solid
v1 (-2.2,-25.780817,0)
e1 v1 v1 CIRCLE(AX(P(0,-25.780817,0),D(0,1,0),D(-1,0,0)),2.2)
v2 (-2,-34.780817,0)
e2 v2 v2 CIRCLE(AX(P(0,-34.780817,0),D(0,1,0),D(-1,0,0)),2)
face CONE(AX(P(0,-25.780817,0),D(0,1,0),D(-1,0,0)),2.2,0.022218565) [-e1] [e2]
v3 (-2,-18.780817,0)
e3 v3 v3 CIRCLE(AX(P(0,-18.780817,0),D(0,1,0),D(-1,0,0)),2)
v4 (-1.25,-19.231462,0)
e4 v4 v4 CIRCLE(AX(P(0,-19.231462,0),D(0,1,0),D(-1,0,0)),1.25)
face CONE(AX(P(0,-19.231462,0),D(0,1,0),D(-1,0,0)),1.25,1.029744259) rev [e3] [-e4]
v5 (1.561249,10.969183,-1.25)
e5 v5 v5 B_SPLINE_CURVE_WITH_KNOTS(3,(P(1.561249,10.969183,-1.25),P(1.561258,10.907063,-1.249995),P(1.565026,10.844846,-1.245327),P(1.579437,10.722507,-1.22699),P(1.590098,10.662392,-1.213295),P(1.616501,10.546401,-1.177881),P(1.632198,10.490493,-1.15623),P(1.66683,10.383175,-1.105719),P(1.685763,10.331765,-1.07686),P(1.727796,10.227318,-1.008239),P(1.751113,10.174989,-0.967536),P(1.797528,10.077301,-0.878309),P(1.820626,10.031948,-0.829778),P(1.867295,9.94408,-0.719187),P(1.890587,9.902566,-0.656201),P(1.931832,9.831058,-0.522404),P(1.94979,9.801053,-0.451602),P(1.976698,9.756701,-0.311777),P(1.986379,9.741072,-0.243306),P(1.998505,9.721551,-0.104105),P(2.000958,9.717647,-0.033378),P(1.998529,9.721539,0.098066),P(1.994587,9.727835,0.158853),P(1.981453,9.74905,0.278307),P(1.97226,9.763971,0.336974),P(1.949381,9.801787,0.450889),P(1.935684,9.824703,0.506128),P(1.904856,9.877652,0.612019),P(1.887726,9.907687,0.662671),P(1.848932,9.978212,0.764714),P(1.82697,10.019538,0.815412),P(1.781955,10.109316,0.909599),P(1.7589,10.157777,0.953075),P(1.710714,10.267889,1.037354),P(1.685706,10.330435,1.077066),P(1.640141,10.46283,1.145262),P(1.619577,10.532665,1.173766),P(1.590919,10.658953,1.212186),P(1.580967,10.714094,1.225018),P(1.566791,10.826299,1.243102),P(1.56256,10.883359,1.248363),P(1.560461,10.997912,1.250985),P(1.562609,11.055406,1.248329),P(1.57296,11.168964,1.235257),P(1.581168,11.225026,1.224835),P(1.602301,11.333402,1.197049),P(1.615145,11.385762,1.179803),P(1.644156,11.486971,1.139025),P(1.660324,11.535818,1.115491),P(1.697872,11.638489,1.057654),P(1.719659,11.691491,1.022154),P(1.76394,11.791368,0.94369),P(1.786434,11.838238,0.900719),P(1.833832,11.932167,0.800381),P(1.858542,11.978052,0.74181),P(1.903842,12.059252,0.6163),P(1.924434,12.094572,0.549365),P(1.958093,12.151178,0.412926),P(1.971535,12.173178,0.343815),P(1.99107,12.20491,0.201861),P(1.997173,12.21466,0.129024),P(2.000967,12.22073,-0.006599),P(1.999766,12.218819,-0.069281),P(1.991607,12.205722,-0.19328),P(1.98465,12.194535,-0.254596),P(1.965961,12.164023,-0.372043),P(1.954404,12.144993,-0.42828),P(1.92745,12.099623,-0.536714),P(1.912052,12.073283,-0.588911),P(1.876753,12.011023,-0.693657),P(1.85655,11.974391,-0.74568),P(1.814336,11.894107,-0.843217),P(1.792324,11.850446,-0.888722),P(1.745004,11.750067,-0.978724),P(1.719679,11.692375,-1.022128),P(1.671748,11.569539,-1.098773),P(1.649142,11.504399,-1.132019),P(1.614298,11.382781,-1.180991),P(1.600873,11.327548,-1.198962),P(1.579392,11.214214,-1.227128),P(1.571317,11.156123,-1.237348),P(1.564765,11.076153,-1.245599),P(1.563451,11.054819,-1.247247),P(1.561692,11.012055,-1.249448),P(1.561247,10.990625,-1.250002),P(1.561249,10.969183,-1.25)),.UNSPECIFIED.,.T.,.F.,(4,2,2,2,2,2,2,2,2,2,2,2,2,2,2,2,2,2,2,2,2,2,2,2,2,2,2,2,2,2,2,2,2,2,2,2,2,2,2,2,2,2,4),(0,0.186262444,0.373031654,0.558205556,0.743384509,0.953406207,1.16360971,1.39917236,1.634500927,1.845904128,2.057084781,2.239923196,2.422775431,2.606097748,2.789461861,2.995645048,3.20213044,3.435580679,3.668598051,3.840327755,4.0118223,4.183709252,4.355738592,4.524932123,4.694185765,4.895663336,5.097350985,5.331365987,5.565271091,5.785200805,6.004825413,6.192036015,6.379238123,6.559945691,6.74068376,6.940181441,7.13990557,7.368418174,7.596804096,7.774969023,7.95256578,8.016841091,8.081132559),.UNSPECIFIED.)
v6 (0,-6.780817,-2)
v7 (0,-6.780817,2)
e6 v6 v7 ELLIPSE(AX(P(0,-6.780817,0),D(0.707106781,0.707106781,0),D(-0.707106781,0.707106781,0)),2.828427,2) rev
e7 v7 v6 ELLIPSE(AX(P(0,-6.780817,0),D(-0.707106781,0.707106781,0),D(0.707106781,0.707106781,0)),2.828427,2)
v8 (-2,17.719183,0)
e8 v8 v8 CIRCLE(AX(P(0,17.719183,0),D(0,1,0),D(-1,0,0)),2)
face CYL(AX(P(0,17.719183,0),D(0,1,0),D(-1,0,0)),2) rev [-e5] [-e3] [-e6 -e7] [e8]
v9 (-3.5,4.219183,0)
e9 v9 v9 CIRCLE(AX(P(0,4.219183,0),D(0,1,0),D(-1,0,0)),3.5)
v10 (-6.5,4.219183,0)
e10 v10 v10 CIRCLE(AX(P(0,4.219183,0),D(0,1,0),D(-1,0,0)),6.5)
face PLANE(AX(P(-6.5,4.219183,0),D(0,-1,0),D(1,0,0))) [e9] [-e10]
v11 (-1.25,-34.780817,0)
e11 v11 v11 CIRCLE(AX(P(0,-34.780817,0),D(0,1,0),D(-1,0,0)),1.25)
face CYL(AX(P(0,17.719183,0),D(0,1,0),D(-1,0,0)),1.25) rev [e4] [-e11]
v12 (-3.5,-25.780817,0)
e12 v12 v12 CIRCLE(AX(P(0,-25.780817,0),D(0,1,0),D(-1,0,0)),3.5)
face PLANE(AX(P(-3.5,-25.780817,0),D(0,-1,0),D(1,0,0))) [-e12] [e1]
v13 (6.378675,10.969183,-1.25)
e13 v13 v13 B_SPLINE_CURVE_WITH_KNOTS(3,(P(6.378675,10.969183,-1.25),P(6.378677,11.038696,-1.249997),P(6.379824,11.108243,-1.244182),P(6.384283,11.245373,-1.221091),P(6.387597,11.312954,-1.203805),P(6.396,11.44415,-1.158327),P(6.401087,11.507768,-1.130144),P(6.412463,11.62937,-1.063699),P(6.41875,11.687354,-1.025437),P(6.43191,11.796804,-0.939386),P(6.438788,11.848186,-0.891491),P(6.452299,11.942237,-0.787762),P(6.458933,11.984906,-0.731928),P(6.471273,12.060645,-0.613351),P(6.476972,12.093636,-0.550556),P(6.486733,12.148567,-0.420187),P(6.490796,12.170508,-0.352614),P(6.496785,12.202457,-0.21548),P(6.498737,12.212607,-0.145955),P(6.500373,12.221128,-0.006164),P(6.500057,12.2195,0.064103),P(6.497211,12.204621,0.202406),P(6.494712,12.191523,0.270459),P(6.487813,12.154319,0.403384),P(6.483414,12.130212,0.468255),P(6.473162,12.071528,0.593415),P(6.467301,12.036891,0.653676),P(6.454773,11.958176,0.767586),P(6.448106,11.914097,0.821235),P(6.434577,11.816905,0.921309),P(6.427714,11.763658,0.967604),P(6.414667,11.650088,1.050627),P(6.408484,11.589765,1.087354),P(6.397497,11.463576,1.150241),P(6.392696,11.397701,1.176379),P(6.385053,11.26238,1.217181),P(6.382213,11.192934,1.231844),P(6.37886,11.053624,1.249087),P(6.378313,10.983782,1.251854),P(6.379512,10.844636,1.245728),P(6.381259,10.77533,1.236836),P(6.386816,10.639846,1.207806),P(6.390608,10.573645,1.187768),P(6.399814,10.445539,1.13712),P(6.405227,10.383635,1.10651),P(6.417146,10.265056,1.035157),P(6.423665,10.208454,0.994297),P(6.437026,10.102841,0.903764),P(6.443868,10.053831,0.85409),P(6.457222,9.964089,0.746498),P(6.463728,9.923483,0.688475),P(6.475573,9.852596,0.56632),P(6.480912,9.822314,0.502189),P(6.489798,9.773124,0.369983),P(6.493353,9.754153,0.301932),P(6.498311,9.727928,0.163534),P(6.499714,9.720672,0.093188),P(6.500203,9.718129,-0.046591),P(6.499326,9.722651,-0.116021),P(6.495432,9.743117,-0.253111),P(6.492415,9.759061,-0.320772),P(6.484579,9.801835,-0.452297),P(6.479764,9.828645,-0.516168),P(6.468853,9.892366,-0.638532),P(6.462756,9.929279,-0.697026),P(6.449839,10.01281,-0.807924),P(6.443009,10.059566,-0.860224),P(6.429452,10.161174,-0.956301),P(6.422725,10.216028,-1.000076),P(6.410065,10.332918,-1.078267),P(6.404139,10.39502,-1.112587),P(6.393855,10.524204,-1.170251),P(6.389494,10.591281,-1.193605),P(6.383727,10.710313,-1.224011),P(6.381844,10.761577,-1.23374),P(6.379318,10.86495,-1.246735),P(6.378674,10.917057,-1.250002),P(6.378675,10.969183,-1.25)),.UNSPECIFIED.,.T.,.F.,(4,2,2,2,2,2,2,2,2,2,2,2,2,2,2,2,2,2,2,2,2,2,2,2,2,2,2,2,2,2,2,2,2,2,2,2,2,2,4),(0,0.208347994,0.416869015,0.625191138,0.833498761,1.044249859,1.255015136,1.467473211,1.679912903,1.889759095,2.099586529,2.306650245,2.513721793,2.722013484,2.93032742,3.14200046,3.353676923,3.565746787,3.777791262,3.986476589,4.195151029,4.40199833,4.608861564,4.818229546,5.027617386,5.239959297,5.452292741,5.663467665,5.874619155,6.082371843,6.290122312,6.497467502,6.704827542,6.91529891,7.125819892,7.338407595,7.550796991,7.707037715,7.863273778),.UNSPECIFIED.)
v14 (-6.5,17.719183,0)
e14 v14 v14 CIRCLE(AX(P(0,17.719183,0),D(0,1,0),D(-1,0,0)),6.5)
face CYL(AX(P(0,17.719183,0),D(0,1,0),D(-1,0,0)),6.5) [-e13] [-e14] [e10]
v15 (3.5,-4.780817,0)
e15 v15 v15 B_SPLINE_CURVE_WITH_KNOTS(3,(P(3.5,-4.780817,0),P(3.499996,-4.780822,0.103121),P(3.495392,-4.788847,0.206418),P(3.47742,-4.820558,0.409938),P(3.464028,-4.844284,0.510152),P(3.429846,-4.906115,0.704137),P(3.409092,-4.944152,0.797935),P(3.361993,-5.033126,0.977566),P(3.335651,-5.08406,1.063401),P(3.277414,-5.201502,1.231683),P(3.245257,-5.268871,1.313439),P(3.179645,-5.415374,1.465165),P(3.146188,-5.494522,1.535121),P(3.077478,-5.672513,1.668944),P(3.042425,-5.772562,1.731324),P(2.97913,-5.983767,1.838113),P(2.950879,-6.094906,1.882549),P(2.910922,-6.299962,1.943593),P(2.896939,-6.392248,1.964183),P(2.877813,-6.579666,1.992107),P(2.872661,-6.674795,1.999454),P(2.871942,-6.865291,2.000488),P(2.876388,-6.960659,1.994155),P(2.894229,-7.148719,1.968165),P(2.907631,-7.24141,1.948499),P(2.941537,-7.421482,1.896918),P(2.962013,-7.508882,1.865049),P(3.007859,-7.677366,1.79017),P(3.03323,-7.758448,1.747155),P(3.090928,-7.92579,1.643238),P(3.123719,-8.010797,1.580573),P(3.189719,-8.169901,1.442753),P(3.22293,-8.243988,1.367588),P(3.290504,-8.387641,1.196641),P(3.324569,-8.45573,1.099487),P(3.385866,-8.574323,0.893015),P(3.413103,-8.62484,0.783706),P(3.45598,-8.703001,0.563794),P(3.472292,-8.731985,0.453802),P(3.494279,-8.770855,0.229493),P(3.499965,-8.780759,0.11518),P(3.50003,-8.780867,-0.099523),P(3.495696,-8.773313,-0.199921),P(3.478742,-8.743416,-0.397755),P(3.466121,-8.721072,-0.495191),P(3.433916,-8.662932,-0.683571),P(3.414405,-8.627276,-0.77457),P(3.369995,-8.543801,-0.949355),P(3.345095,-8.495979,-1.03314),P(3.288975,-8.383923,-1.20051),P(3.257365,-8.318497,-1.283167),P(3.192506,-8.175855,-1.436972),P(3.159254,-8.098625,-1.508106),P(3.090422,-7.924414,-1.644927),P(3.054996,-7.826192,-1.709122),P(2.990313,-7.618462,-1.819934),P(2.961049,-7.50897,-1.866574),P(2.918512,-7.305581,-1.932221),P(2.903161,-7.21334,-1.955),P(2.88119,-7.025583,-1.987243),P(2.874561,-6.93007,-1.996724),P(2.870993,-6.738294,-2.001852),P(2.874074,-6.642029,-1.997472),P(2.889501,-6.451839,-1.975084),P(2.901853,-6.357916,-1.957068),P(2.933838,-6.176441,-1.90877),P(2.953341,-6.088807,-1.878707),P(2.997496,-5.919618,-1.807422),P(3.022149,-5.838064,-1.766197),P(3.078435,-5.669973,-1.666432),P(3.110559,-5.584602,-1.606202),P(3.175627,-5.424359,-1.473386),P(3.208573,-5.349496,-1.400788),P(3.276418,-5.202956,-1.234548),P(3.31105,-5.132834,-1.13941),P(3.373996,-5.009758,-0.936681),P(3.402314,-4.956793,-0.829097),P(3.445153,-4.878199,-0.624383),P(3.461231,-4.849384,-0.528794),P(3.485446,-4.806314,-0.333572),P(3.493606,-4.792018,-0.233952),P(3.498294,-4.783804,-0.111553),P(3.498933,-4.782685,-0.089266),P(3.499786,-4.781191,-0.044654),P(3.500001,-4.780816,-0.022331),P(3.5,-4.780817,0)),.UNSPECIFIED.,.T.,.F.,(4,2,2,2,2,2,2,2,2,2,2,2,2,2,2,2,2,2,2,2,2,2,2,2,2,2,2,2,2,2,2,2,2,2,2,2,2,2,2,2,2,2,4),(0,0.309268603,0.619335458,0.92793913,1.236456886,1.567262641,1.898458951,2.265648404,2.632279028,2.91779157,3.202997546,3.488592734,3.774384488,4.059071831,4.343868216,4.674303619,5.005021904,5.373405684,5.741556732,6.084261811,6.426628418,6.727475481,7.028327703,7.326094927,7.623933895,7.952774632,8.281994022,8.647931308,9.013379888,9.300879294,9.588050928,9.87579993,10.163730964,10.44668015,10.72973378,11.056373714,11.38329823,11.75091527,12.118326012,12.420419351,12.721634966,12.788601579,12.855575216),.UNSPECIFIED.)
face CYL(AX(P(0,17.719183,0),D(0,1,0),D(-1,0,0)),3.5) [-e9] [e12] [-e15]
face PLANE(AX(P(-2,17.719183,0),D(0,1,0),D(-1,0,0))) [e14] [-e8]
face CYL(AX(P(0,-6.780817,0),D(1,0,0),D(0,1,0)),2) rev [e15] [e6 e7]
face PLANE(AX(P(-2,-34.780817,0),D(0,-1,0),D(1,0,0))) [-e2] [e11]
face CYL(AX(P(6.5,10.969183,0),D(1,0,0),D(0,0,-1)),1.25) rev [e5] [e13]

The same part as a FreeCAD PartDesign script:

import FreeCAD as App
import Part
import Sketcher
Q = App.Units.Quantity

doc = App.newDocument("Part")
body = doc.addObject("PartDesign::Body", "Body")

sketch1 = body.newObject("Sketcher::SketchObject", "Sketch")
sketch1.AttachmentSupport = (doc.getObject("XY_Plane"), [""])
sketch1.MapMode = "FlatFace"
sketch1.addGeometry([
    Part.LineSegment(App.Vector(-2, -34.8, 0), App.Vector(-1.2, -34.8, 0)),
    Part.LineSegment(App.Vector(-1.2, -34.8, 0), App.Vector(-1.2, -19.2, 0)),
    Part.LineSegment(App.Vector(-1.2, -19.2, 0), App.Vector(-2, -18.8, 0)),
    Part.LineSegment(App.Vector(-2, -18.8, 0), App.Vector(-2, 17.7, 0)),
    Part.LineSegment(App.Vector(-2, 17.7, 0), App.Vector(-6.5, 17.7, 0)),
    Part.LineSegment(App.Vector(-6.5, 17.7, 0), App.Vector(-6.5, 4.2, 0)),
    Part.LineSegment(App.Vector(-6.5, 4.2, 0), App.Vector(-3.5, 4.2, 0)),
    Part.LineSegment(App.Vector(-3.5, 4.2, 0), App.Vector(-3.5, -25.8, 0)),
    Part.LineSegment(App.Vector(-3.5, -25.8, 0), App.Vector(-2.2, -25.8, 0)),
    Part.LineSegment(App.Vector(-2.2, -25.8, 0), App.Vector(-2, -34.8, 0)),
], False)
sketch1.addConstraint([
    Sketcher.Constraint("Coincident", 0, 2, 1, 1),
    Sketcher.Constraint("Coincident", 1, 2, 2, 1),
    Sketcher.Constraint("Coincident", 2, 2, 3, 1),
    Sketcher.Constraint("Coincident", 3, 2, 4, 1),
    Sketcher.Constraint("Coincident", 4, 2, 5, 1),
    Sketcher.Constraint("Coincident", 5, 2, 6, 1),
    Sketcher.Constraint("Coincident", 6, 2, 7, 1),
    Sketcher.Constraint("Coincident", 7, 2, 8, 1),
    Sketcher.Constraint("Coincident", 8, 2, 9, 1),
    Sketcher.Constraint("Coincident", 9, 2, 0, 1),
    Sketcher.Constraint("Horizontal", 0),
    Sketcher.Constraint("Vertical", 1),
    Sketcher.Constraint("Vertical", 3),
    Sketcher.Constraint("Horizontal", 4),
    Sketcher.Constraint("Vertical", 5),
    Sketcher.Constraint("Horizontal", 6),
    Sketcher.Constraint("Vertical", 7),
    Sketcher.Constraint("Horizontal", 8),
    Sketcher.Constraint("Vertical", 3, 2, 9, 2),
    Sketcher.Constraint("DistanceX", 6, 1, 6, 2, 3.0),
    Sketcher.Constraint("DistanceY", 7, 2, 7, 1, 30.0),
    Sketcher.Constraint("Angle", 2, Q("149 deg")),
    Sketcher.Constraint("DistanceX", 4, 2, 4, 1, 4.5),
    Sketcher.Constraint("DistanceX", 8, 1, 8, 2, 1.3),
    Sketcher.Constraint("DistanceY", 3, 1, 3, 2, 36.5),
    Sketcher.Constraint("DistanceY", 5, 2, 5, 1, 13.5),
    Sketcher.Constraint("DistanceX", 2, 2, -1, 1, 2.0),
    Sketcher.Constraint("DistanceY", 0, 2, 2, 2, 16.0),
    Sketcher.Constraint("DistanceX", 0, 1, 0, 2, 0.75),
    Sketcher.Constraint("DistanceY", 0, 2, -1, 1, 34.780817),
])
revolution = body.newObject("PartDesign::Revolution", "Revolution")
revolution.Profile = sketch1
revolution.ReferenceAxis = (sketch1, ["V_Axis"])
revolution.Angle = 360

sketch2 = body.newObject("Sketcher::SketchObject", "Sketch001")
sketch2.AttachmentSupport = (doc.getObject("YZ_Plane"), [""])
sketch2.MapMode = "FlatFace"
sketch2.AttachmentOffset = App.Placement(App.Vector(0, 0, 3.5), App.Rotation())
sketch2.addGeometry(Part.Circle(App.Vector(-6.8, 0, 0), App.Vector(0, 0, 1), 2), False)
sketch2.addConstraint([
    Sketcher.Constraint("PointOnObject", 0, 3, -1),
    Sketcher.Constraint("Diameter", 0, 4.0),
    Sketcher.Constraint("DistanceX", 0, 3, -1, 1, 6.780817),
])
pocket1 = body.newObject("PartDesign::Pocket", "Pocket")
pocket1.Profile = sketch2
pocket1.Length = 3.5

sketch3 = body.newObject("Sketcher::SketchObject", "Sketch002")
sketch3.AttachmentSupport = (doc.getObject("YZ_Plane"), [""])
sketch3.MapMode = "FlatFace"
sketch3.AttachmentOffset = App.Placement(App.Vector(0, 0, 6.5), App.Rotation())
sketch3.addGeometry(Part.Circle(App.Vector(11, 0, 0), App.Vector(0, 0, 1), 1.2), False)
sketch3.addConstraint([
    Sketcher.Constraint("PointOnObject", 0, 3, -1),
    Sketcher.Constraint("Diameter", 0, 2.5),
    Sketcher.Constraint("DistanceX", -1, 1, 0, 3, 10.969183),
])
doc.recompute()
hole = body.newObject("PartDesign::Hole", "Hole")
hole.Profile = sketch3
hole.ThreadType = "None"
hole.Diameter = 2.5
hole.DepthType = "Dimension"
hole.Depth = 6
hole.DrillPoint = "Angled"
hole.DrillPointAngle = 118

doc.recompute()
